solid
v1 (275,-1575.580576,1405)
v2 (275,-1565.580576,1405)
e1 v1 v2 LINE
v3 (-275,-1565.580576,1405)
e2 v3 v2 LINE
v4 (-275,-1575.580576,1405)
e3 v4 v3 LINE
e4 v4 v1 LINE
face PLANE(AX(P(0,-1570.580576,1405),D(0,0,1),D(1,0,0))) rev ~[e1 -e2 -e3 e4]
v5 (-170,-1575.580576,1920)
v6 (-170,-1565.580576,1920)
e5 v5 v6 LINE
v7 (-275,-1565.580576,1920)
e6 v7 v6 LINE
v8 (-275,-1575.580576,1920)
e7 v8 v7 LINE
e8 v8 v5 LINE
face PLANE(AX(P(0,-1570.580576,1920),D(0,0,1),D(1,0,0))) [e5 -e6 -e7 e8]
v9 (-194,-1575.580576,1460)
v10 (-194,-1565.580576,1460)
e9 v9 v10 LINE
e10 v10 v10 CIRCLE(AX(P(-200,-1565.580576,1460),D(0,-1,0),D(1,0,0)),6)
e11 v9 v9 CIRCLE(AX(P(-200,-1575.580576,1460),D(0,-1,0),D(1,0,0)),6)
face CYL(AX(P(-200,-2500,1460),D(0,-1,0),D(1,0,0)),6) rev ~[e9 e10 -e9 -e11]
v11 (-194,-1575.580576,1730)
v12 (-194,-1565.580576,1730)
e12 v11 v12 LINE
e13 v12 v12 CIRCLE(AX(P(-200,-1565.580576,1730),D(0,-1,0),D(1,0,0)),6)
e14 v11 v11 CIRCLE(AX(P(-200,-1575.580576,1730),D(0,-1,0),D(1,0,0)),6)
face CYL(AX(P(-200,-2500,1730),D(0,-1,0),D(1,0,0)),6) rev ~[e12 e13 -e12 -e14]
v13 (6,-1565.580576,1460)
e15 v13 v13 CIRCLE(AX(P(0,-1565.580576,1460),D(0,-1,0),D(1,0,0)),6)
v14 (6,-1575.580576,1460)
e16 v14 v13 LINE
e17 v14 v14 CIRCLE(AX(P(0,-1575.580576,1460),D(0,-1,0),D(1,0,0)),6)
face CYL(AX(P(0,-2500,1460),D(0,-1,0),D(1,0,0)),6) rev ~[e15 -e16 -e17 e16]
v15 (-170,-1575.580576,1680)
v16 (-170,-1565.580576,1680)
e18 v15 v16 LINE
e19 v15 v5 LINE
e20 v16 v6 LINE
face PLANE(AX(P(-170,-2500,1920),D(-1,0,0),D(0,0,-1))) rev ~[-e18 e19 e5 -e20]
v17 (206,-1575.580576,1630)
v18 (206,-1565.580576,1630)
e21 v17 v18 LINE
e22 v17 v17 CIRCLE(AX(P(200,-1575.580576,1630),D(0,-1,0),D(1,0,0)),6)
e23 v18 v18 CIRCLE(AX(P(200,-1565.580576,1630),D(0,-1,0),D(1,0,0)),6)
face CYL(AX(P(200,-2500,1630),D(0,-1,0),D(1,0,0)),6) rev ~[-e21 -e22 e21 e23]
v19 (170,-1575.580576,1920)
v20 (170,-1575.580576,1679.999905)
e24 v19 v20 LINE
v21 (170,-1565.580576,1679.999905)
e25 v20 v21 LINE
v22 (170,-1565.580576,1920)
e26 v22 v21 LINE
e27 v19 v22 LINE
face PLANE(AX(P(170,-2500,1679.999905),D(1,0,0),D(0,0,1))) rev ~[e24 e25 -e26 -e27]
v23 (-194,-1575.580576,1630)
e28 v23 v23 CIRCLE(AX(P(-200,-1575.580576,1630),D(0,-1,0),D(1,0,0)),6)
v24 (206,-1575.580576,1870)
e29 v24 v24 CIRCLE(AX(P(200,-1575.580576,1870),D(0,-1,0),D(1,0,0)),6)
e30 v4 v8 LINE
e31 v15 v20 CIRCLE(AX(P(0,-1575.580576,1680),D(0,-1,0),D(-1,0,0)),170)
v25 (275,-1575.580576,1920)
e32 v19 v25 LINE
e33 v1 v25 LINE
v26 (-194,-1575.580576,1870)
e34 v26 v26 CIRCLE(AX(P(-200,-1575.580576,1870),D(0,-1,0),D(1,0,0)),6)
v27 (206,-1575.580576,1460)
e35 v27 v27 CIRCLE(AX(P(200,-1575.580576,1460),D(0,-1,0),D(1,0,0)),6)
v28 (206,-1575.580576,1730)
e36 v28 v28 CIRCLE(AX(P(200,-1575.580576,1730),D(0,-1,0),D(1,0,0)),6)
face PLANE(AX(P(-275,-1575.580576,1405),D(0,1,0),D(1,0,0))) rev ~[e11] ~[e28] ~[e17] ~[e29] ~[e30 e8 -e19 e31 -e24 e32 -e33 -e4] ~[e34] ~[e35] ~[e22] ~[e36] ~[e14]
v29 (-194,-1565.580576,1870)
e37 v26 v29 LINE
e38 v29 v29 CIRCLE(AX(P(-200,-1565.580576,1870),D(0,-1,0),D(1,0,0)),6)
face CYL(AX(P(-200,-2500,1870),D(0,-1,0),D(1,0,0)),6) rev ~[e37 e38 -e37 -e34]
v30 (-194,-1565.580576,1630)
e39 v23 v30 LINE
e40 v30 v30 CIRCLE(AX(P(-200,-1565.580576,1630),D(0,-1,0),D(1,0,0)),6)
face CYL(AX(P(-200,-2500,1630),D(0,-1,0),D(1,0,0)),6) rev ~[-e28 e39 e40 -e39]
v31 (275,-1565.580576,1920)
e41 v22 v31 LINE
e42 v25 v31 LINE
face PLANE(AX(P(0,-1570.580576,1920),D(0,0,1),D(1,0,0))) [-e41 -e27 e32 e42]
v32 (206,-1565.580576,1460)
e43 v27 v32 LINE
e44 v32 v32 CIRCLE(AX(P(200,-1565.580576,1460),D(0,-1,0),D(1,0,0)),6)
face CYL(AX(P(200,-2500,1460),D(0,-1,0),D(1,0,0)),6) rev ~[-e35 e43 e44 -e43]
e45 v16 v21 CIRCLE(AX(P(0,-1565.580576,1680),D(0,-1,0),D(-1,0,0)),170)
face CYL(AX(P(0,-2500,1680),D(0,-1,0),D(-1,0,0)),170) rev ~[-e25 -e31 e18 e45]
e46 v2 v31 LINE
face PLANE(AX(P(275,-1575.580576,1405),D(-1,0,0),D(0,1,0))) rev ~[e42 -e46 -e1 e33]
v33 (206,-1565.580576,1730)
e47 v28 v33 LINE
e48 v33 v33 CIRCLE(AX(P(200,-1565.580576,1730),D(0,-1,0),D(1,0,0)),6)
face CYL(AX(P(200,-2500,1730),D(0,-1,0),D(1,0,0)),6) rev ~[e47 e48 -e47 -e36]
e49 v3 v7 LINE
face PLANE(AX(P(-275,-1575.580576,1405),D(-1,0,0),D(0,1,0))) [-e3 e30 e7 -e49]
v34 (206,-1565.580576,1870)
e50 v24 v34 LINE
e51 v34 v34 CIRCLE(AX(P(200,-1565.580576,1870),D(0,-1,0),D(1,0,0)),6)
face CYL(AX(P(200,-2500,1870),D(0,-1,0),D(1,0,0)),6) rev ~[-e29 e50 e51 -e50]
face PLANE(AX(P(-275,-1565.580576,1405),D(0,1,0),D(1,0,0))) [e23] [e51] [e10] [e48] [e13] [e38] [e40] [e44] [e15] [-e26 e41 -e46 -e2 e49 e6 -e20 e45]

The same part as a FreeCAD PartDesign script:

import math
import FreeCAD as App
import Part
import Sketcher
from FreeCAD import Vector

doc = App.newDocument("Part")
body = doc.addObject("PartDesign::Body", "Body")
body.AllowCompound = True

# Sketch on XZ plane
sketch1 = body.newObject("Sketcher::SketchObject", "Sketch")
sketch1.AttachmentSupport = (doc.getObject("XZ_Plane"), [""])
sketch1.MapMode = "FlatFace"
sketch1.AttachmentOffset = App.Placement(Vector(0, 0, 2500), App.Rotation())
sketch1.addGeometry(Part.Circle(Vector(-200, 1730, 0), Vector(0, 0, 1), 6), False)
sketch1.addGeometry(Part.Circle(Vector(-200, 1870, 0), Vector(0, 0, 1), 6), False)
sketch1.addGeometry(Part.Circle(Vector(200, 1870, 0), Vector(0, 0, 1), 6), False)
sketch1.addGeometry(Part.Circle(Vector(200, 1730, 0), Vector(0, 0, 1), 6), False)
sketch1.addGeometry(Part.Circle(Vector(-200, 1630, 0), Vector(0, 0, 1), 6), False)
sketch1.addGeometry(Part.Circle(Vector(-200, 1460, 0), Vector(0, 0, 1), 6), False)
sketch1.addGeometry(Part.Circle(Vector(200, 1630, 0), Vector(0, 0, 1), 6), False)
sketch1.addGeometry(Part.Circle(Vector(200, 1460, 0), Vector(0, 0, 1), 6), False)
sketch1.addGeometry(Part.Circle(Vector(0, 1460, 0), Vector(0, 0, 1), 6), False)
sketch1.addConstraint(Sketcher.Constraint("Equal", 0, 1))
sketch1.addConstraint(Sketcher.Constraint("Equal", 1, 2))
sketch1.addConstraint(Sketcher.Constraint("Equal", 2, 3))
sketch1.addConstraint(Sketcher.Constraint("Equal", 3, 4))
sketch1.addConstraint(Sketcher.Constraint("Equal", 4, 5))
sketch1.addConstraint(Sketcher.Constraint("Equal", 5, 6))
sketch1.addConstraint(Sketcher.Constraint("Equal", 6, 7))
sketch1.addConstraint(Sketcher.Constraint("Equal", 7, 8))
sketch1.addConstraint(Sketcher.Constraint("Symmetric", 1, 3, 2, 3, -2))
sketch1.addConstraint(Sketcher.Constraint("Symmetric", 0, 3, 3, 3, -2))
sketch1.addConstraint(Sketcher.Constraint("Symmetric", 4, 3, 6, 3, -2))
sketch1.addConstraint(Sketcher.Constraint("Symmetric", 5, 3, 7, 3, -2))
sketch1.addConstraint(Sketcher.Constraint("PointOnObject", 8, 3, -2))
sketch1.addConstraint(Sketcher.Constraint("Horizontal", 7, 3, 8, 3))
sketch1.addConstraint(Sketcher.Constraint("Vertical", 0, 3, 1, 3))
sketch1.addConstraint(Sketcher.Constraint("Vertical", 1, 3, 4, 3))
sketch1.addConstraint(Sketcher.Constraint("Vertical", 4, 3, 5, 3))
sketch1.addConstraint(Sketcher.Constraint("Diameter", 0, 12.0))
sketch1.addConstraint(Sketcher.Constraint("DistanceX", 0, 3, -1, 1, 200.0))
sketch1.addConstraint(Sketcher.Constraint("DistanceY", -1, 1, 0, 3, 1730.0))
sketch1.addConstraint(Sketcher.Constraint("DistanceY", -1, 1, 1, 3, 1870.0))
sketch1.addConstraint(Sketcher.Constraint("DistanceY", -1, 1, 4, 3, 1630.0))
sketch1.addConstraint(Sketcher.Constraint("DistanceY", -1, 1, 5, 3, 1460.0))
pad1 = body.newObject("PartDesign::Pad", "Pad")
pad1.Profile = sketch1
pad1.Length = 1000
pad1.Reversed = True
body2 = doc.addObject("PartDesign::Body", "Body001")

# Sketch on XZ plane
sketch2 = body2.newObject("Sketcher::SketchObject", "Sketch001")
sketch2.AttachmentSupport = (doc.getObject("XZ_Plane001"), [""])
sketch2.MapMode = "FlatFace"
sketch2.AttachmentOffset = App.Placement(Vector(0, 0, 2500), App.Rotation())
sketch2.addGeometry(Part.LineSegment(Vector(-170, 1920, 0), Vector(-170, 1680, 0)), False)
sketch2.addGeometry(Part.ArcOfCircle(Part.Circle(Vector(0, 1680, 0), Vector(0, 0, 1), 170), math.radians(180), math.radians(359.999968)), False)
sketch2.addGeometry(Part.LineSegment(Vector(170, 1679.999905, 0), Vector(170, 1920, 0)), False)
sketch2.addGeometry(Part.LineSegment(Vector(170, 1920, 0), Vector(-170, 1920, 0)), False)
sketch2.addConstraint(Sketcher.Constraint("Coincident", 0, 2, 1, 1))
sketch2.addConstraint(Sketcher.Constraint("Coincident", 1, 2, 2, 1))
sketch2.addConstraint(Sketcher.Constraint("Coincident", 2, 2, 3, 1))
sketch2.addConstraint(Sketcher.Constraint("Coincident", 3, 2, 0, 1))
sketch2.addConstraint(Sketcher.Constraint("Vertical", 0))
sketch2.addConstraint(Sketcher.Constraint("Vertical", 2))
sketch2.addConstraint(Sketcher.Constraint("Horizontal", 3))
sketch2.addConstraint(Sketcher.Constraint("PointOnObject", 1, 3, -2))
sketch2.addConstraint(Sketcher.Constraint("Radius", 1, 170.0))
sketch2.addConstraint(Sketcher.Constraint("DistanceY", 0, 2, 0, 1, 240.0))
sketch2.addConstraint(Sketcher.Constraint("DistanceY", -1, 1, 1, 3, 1680.0))
sketch2.addConstraint(Sketcher.Constraint("DistanceY", -1, 1, 0, 2, 1680.0))
sketch2.addConstraint(Sketcher.Constraint("DistanceY", 2, 1, 2, 2, 240.000095))
pad2 = body2.newObject("PartDesign::Pad", "Pad001")
pad2.Profile = sketch2
pad2.Length = 1000
pad2.Reversed = True
body3 = doc.addObject("PartDesign::Body", "Body002")

# Sketch on XY plane
sketch3 = body3.newObject("Sketcher::SketchObject", "Sketch002")
sketch3.AttachmentSupport = (doc.getObject("XY_Plane002"), [""])
sketch3.MapMode = "FlatFace"
sketch3.AttachmentOffset = App.Placement(Vector(0, 0, 1405), App.Rotation())
sketch3.addGeometry(Part.LineSegment(Vector(-275, -1565.580576, 0), Vector(-275, -1575.580576, 0)), False)
sketch3.addGeometry(Part.LineSegment(Vector(-275, -1575.580576, 0), Vector(275, -1575.580576, 0)), False)
sketch3.addGeometry(Part.LineSegment(Vector(275, -1575.580576, 0), Vector(275, -1565.580576, 0)), False)
sketch3.addGeometry(Part.LineSegment(Vector(275, -1565.580576, 0), Vector(-275, -1565.580576, 0)), False)
sketch3.addConstraint(Sketcher.Constraint("Coincident", 0, 2, 1, 1))
sketch3.addConstraint(Sketcher.Constraint("Coincident", 1, 2, 2, 1))
sketch3.addConstraint(Sketcher.Constraint("Coincident", 2, 2, 3, 1))
sketch3.addConstraint(Sketcher.Constraint("Coincident", 3, 2, 0, 1))
sketch3.addConstraint(Sketcher.Constraint("Vertical", 0))
sketch3.addConstraint(Sketcher.Constraint("Horizontal", 1))
sketch3.addConstraint(Sketcher.Constraint("Vertical", 2))
sketch3.addConstraint(Sketcher.Constraint("Horizontal", 3))
sketch3.addConstraint(Sketcher.Constraint("DistanceX", 1, 1, 1, 2, 550.0))
sketch3.addConstraint(Sketcher.Constraint("DistanceY", 0, 2, 0, 1, 10.0))
sketch3.addConstraint(Sketcher.Constraint("DistanceX", 0, 2, -1, 1, 275.0))
sketch3.addConstraint(Sketcher.Constraint("DistanceY", 0, 2, -1, 1, 1575.580576))
pad3 = body3.newObject("PartDesign::Pad", "Pad002")
pad3.Profile = sketch3
pad3.Length = 515
doc.recompute()

boolean = body3.newObject("PartDesign::Boolean", "Boolean")
boolean.Type = "Cut"
boolean.addObjects([body2])
doc.recompute()

boolean2 = body3.newObject("PartDesign::Boolean", "Boolean001")
boolean2.Type = "Cut"
boolean2.addObjects([body])

doc.recompute()
